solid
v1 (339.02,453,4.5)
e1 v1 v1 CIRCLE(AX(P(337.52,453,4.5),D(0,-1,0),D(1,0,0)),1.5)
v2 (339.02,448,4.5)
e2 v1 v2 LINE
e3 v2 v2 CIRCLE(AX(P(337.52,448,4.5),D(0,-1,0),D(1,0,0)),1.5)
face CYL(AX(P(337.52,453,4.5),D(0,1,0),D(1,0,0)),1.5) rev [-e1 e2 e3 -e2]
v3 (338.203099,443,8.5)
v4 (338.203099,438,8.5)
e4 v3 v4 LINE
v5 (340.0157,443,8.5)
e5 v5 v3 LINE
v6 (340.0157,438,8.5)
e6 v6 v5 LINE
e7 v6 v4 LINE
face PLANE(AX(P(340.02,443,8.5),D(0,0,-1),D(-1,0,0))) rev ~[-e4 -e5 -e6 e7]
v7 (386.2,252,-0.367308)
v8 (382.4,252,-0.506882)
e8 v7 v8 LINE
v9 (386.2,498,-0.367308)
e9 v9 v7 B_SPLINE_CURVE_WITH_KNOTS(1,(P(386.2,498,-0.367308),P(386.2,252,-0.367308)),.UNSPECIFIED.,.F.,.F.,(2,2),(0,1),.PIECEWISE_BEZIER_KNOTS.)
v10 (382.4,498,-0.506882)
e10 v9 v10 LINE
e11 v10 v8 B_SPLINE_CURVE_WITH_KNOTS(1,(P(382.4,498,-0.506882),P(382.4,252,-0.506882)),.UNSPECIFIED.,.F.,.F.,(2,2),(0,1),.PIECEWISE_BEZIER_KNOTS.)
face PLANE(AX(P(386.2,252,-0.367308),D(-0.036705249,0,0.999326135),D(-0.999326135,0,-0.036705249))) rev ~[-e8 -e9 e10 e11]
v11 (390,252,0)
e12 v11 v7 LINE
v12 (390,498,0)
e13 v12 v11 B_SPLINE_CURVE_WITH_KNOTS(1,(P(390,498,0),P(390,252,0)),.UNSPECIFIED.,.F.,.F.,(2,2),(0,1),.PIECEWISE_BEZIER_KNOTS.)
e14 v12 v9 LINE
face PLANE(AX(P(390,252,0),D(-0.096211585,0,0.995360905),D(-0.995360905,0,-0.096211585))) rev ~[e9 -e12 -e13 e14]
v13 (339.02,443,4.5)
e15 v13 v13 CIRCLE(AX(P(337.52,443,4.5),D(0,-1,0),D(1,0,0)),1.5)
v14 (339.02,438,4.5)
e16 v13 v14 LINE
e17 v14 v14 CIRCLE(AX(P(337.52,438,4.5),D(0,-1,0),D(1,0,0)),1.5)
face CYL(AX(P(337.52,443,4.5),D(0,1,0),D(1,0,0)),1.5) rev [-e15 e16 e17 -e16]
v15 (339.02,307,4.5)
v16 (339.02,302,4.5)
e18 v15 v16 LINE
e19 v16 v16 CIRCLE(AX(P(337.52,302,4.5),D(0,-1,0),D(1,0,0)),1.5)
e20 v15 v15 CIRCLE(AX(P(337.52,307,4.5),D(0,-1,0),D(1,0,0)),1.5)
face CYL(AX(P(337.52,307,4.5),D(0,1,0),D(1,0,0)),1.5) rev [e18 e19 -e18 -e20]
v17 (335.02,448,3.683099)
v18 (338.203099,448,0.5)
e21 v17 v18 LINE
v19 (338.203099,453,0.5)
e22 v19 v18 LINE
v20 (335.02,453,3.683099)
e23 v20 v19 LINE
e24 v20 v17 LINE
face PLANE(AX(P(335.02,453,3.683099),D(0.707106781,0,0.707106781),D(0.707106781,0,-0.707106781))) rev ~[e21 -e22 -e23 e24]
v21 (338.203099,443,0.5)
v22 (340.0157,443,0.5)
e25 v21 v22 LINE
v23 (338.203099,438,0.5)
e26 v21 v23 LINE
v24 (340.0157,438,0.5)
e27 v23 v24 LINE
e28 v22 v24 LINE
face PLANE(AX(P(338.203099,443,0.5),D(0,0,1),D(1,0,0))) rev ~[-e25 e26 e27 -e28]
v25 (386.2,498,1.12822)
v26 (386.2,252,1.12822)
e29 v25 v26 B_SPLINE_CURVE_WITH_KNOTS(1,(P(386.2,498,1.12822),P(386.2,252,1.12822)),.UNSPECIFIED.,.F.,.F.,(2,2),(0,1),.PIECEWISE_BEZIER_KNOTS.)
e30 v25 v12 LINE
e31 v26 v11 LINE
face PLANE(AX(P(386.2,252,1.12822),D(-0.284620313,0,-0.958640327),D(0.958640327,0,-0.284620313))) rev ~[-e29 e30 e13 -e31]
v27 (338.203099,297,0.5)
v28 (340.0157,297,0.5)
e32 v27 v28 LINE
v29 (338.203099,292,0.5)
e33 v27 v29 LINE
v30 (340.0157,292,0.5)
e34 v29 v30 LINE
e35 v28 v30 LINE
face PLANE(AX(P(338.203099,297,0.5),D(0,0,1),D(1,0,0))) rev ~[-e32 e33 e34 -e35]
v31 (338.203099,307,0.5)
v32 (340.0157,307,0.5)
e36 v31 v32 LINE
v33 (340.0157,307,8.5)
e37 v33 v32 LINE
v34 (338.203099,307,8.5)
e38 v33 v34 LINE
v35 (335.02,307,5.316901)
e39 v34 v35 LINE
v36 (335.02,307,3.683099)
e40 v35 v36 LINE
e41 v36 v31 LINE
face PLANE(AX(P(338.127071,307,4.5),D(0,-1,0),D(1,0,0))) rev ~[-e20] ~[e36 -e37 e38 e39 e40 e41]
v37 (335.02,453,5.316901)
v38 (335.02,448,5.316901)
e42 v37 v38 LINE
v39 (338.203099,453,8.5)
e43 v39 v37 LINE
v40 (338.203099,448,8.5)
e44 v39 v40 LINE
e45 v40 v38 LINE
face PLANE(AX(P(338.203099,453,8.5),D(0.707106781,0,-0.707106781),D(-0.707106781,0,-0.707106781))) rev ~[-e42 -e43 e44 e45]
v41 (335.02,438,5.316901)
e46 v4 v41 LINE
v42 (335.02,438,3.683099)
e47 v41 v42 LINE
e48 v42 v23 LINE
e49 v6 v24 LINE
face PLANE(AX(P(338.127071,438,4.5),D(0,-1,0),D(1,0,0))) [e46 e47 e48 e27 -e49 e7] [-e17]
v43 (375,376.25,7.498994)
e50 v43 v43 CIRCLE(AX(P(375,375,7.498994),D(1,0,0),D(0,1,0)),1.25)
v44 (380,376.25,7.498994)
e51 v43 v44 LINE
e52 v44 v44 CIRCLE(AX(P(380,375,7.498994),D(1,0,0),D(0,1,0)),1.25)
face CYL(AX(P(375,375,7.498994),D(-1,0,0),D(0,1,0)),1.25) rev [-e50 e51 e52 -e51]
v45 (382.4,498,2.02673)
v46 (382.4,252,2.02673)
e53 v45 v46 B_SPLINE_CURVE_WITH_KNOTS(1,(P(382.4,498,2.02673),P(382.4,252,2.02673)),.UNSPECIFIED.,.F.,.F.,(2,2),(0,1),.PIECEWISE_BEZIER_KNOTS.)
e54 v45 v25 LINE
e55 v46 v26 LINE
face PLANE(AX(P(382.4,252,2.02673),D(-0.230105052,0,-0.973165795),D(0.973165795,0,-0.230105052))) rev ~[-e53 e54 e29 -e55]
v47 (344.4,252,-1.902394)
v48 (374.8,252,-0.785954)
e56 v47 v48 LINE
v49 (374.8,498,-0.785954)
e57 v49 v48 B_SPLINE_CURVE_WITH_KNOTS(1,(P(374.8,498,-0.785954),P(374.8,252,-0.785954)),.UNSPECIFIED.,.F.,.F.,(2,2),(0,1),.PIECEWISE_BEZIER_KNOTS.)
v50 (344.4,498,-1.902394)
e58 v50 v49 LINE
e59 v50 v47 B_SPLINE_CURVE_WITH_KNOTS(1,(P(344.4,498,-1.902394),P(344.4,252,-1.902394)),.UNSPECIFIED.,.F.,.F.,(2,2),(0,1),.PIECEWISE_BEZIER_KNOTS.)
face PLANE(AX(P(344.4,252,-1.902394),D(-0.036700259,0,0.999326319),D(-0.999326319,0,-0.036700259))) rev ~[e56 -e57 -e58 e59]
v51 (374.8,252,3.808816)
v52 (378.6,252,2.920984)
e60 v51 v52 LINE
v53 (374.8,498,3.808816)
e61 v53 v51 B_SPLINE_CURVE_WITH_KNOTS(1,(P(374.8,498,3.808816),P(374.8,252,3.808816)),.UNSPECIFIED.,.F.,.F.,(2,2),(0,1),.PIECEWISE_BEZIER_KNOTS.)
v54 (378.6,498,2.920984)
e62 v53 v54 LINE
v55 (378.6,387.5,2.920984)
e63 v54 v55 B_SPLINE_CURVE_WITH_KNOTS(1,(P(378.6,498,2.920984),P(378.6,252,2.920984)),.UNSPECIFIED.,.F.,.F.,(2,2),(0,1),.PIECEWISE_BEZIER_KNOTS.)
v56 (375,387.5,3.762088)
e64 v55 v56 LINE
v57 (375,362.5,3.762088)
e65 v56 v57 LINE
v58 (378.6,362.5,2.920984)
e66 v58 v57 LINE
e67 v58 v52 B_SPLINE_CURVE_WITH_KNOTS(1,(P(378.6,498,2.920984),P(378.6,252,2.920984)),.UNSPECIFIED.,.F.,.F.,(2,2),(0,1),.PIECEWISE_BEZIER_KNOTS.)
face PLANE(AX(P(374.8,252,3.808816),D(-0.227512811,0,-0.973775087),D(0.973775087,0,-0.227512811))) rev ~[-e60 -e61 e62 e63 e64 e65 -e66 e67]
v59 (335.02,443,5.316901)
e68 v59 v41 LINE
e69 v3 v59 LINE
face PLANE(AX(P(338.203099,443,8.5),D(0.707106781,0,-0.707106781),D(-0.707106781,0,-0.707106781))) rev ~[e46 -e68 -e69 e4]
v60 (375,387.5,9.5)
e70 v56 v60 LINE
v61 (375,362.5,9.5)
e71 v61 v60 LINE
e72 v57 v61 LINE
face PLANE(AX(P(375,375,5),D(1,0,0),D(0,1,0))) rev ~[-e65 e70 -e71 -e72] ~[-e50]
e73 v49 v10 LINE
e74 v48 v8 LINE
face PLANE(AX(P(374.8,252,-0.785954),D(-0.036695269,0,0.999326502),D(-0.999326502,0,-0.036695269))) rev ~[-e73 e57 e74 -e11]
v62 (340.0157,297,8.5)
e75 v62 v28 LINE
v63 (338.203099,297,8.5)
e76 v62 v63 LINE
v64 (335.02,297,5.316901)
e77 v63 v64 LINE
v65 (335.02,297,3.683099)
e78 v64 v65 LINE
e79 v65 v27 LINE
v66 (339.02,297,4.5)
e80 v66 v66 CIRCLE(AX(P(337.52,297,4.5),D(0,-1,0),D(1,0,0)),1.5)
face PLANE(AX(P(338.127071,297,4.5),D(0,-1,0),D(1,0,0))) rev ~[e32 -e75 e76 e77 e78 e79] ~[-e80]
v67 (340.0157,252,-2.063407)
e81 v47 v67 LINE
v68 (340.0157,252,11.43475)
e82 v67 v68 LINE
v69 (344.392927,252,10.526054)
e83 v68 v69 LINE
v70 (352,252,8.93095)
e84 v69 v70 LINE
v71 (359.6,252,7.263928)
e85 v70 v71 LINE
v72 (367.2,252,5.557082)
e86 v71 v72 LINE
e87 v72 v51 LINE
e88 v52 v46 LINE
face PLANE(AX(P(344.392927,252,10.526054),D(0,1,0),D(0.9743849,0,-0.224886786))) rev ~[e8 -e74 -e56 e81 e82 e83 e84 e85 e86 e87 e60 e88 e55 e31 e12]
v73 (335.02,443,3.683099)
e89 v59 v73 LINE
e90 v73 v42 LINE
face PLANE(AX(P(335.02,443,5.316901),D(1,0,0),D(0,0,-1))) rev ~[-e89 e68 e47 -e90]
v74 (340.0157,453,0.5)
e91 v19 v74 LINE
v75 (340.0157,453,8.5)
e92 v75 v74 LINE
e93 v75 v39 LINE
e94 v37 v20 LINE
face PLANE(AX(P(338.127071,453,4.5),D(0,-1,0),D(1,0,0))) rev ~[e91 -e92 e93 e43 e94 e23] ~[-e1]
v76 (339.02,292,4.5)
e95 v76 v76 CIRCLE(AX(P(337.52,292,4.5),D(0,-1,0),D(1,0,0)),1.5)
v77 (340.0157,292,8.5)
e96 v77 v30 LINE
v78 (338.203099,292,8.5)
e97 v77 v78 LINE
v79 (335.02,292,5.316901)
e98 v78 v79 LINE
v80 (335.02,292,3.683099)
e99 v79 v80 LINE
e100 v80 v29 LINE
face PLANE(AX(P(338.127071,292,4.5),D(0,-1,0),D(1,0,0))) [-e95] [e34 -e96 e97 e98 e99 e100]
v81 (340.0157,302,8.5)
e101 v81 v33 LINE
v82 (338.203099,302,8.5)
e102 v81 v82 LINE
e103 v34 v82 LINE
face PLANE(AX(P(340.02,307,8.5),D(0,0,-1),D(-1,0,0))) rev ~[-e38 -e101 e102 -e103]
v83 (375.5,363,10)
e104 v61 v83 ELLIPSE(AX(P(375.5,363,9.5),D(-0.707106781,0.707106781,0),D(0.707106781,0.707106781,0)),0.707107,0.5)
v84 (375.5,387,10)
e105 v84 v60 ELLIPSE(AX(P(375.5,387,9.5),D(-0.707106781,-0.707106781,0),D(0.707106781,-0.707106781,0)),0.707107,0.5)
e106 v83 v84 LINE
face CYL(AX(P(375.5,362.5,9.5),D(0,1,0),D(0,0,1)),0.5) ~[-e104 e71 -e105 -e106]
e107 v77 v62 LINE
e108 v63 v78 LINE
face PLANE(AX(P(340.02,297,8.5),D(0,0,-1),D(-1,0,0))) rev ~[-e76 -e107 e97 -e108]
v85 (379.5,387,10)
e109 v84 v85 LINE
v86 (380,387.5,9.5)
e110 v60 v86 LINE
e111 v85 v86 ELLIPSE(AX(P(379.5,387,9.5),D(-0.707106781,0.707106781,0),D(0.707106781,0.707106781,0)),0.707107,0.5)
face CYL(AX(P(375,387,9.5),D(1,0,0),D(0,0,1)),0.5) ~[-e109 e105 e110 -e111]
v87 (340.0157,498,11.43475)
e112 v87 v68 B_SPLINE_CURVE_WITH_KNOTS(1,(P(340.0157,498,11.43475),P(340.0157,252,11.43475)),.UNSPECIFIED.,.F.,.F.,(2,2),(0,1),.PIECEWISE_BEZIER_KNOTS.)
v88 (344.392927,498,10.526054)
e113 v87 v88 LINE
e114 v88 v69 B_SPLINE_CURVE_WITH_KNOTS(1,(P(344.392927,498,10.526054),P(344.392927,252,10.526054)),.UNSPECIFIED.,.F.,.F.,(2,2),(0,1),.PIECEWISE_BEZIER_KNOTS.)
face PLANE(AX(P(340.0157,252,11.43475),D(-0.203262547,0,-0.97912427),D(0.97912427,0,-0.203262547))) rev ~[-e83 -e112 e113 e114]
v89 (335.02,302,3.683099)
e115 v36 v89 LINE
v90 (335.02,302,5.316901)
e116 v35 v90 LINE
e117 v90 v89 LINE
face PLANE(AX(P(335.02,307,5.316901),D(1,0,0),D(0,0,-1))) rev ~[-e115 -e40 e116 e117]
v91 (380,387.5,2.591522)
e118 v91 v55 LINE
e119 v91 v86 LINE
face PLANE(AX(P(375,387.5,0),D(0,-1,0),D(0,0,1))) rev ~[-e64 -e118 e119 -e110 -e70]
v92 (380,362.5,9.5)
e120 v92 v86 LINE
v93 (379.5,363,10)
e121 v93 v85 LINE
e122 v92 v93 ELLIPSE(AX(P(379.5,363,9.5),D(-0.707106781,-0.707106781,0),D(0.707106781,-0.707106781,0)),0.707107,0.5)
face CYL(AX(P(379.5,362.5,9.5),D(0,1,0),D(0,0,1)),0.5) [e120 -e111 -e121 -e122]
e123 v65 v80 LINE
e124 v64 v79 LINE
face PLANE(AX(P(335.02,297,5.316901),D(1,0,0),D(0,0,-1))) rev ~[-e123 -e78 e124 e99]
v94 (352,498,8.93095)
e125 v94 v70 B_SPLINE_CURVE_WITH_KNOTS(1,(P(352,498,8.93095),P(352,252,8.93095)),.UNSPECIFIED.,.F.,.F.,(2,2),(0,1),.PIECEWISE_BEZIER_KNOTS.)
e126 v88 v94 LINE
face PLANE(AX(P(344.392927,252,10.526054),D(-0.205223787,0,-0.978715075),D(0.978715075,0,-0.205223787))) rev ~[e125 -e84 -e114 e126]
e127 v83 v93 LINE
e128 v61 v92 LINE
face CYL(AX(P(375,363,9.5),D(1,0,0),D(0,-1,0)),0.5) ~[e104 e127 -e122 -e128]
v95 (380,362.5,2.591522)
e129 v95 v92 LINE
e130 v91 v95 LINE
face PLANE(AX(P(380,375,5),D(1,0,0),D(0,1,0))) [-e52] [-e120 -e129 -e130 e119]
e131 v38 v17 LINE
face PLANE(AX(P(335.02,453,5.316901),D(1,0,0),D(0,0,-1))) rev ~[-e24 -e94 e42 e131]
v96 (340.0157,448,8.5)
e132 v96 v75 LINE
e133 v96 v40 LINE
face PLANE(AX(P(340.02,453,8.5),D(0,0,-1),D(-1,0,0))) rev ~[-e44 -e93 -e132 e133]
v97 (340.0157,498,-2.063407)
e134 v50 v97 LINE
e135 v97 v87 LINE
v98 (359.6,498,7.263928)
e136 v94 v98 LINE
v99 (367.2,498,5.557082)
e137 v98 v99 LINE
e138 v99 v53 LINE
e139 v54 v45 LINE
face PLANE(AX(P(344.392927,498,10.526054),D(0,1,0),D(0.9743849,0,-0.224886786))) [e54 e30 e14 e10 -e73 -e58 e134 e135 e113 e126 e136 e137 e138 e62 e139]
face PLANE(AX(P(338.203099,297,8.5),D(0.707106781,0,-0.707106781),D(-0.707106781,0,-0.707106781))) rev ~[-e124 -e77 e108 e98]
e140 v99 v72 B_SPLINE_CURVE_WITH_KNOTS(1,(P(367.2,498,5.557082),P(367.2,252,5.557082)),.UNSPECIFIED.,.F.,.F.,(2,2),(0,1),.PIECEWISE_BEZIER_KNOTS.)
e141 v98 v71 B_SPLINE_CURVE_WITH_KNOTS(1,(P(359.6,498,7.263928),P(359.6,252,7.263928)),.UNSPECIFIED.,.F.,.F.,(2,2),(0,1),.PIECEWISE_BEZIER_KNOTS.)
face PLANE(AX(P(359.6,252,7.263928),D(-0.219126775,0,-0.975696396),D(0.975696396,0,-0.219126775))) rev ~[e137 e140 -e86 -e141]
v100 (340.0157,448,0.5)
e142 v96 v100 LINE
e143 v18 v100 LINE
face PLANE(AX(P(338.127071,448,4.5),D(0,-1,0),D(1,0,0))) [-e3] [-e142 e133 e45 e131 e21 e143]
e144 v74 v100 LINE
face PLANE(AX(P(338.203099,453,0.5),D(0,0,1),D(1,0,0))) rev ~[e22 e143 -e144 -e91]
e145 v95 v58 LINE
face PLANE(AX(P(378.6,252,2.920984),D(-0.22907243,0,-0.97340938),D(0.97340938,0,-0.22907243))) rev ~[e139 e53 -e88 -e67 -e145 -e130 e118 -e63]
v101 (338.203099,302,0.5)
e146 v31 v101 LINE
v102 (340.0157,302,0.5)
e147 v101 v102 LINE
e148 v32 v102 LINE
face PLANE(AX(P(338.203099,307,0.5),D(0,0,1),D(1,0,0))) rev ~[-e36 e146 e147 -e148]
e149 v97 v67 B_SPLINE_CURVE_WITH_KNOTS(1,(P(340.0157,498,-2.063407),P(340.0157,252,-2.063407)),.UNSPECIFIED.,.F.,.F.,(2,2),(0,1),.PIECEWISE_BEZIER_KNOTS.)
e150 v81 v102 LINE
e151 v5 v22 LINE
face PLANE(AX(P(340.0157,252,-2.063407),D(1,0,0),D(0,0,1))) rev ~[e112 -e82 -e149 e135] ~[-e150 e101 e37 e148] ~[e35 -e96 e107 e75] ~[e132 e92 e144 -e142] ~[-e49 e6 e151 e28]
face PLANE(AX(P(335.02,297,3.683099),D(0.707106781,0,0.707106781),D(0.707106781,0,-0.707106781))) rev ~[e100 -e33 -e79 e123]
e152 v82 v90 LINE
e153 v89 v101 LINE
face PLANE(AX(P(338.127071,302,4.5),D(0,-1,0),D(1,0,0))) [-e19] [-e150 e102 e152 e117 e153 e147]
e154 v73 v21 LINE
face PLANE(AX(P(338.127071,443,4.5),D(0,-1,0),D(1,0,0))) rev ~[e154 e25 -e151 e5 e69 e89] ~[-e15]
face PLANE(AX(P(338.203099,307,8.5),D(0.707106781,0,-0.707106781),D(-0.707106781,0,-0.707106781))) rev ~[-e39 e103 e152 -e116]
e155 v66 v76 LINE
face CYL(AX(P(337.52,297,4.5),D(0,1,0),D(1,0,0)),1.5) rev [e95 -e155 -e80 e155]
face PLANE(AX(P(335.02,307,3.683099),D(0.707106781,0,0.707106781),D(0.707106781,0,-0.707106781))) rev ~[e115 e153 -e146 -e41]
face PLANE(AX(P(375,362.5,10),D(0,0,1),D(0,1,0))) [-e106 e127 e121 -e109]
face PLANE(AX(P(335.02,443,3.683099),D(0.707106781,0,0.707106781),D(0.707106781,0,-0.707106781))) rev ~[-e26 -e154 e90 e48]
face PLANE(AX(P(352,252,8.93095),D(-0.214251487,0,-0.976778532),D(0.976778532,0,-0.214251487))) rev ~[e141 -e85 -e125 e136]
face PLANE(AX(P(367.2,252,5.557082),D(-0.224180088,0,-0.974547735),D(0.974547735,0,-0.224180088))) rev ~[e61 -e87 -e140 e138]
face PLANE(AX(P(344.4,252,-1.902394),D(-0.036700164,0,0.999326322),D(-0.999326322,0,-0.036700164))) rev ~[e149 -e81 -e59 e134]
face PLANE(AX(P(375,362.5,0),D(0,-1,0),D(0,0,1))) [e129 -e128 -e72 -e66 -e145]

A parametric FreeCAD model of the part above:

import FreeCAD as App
import Part
import Sketcher
from FreeCAD import Vector


def edges_at(feature, points):
    """Names of the edges that pass closest to the given points."""
    edges = feature.Shape.Edges
    near = lambda p: min(range(len(edges)), key=lambda i: edges[i].distToShape(Part.Vertex(*p))[0])
    return sorted({f"Edge{near(p) + 1}" for p in points})

doc = App.newDocument("Part")
body = doc.addObject("PartDesign::Body", "Body")

# Sketch on XZ plane
sketch1 = body.newObject("Sketcher::SketchObject", "Sketch")
sketch1.AttachmentSupport = (doc.getObject("XZ_Plane"), [""])
sketch1.MapMode = "FlatFace"
sketch1.addGeometry(Part.LineSegment(Vector(0.7, -4, 0), Vector(2.5, -4, 0)), False)
sketch1.addGeometry(Part.LineSegment(Vector(2.5, -4, 0), Vector(2.5, 4, 0)), False)
sketch1.addGeometry(Part.LineSegment(Vector(2.5, 4, 0), Vector(0.7, 4, 0)), False)
sketch1.addGeometry(Part.LineSegment(Vector(0.7, 4, 0), Vector(-2.5, 0.8, 0)), False)
sketch1.addGeometry(Part.LineSegment(Vector(-2.5, 0.8, 0), Vector(-2.5, -0.8, 0)), False)
sketch1.addGeometry(Part.LineSegment(Vector(-2.5, -0.8, 0), Vector(0.7, -4, 0)), False)
sketch1.addGeometry(Part.Circle(Vector(0, 0, 0), Vector(0, 0, 1), 1.5), False)
sketch1.addConstraint(Sketcher.Constraint("Coincident", 0, 2, 1, 1))
sketch1.addConstraint(Sketcher.Constraint("Coincident", 1, 2, 2, 1))
sketch1.addConstraint(Sketcher.Constraint("Coincident", 2, 2, 3, 1))
sketch1.addConstraint(Sketcher.Constraint("Coincident", 3, 2, 4, 1))
sketch1.addConstraint(Sketcher.Constraint("Coincident", 4, 2, 5, 1))
sketch1.addConstraint(Sketcher.Constraint("Coincident", 5, 2, 0, 1))
sketch1.addConstraint(Sketcher.Constraint("Horizontal", 0))
sketch1.addConstraint(Sketcher.Constraint("Vertical", 1))
sketch1.addConstraint(Sketcher.Constraint("Horizontal", 2))
sketch1.addConstraint(Sketcher.Constraint("Vertical", 4))
sketch1.addConstraint(Sketcher.Constraint("Symmetric", 2, 2, 5, 2, -1))
sketch1.addConstraint(Sketcher.Constraint("PointOnObject", 6, 3, -1))
sketch1.addConstraint(Sketcher.Constraint("Perpendicular", 3, 5))
sketch1.addConstraint(Sketcher.Constraint("Equal", 3, 5))
sketch1.addConstraint(Sketcher.Constraint("Diameter", 6, 3.0))
sketch1.addConstraint(Sketcher.Constraint("DistanceY", 1, 1, 1, 2, 8.0))
sketch1.addConstraint(Sketcher.Constraint("DistanceX", 3, 2, 1, 2, 5.0))
sketch1.addConstraint(Sketcher.Constraint("DistanceX", 6, 3, 0, 2, 2.5))
sketch1.addConstraint(Sketcher.Constraint("DistanceX", -1, 1, 6, 3, 0.02))
sketch1.addConstraint(Sketcher.Constraint("DistanceX", 0, 1, 0, 2, 1.816901))
pad1 = body.newObject("PartDesign::Pad", "Pad")
pad1.Profile = sketch1
pad1.Length = 5
body2 = doc.addObject("PartDesign::Body", "Body001")
doc.recompute()

body.Placement = App.Placement(Vector(337.5, 453, 4.5), App.Rotation(Vector(0, 0, 1), 0))
boolean = body2.newObject("PartDesign::Boolean", "Boolean")
boolean.Type = "Fuse"
boolean.addObjects([body])
body3 = doc.addObject("PartDesign::Body", "Body002")

# Sketch on XZ plane
sketch2 = body3.newObject("Sketcher::SketchObject", "Sketch001")
sketch2.AttachmentSupport = (doc.getObject("XZ_Plane002"), [""])
sketch2.MapMode = "FlatFace"
sketch2.addGeometry(Part.LineSegment(Vector(0.7, -4, 0), Vector(2.5, -4, 0)), False)
sketch2.addGeometry(Part.LineSegment(Vector(2.5, -4, 0), Vector(2.5, 4, 0)), False)
sketch2.addGeometry(Part.LineSegment(Vector(2.5, 4, 0), Vector(0.7, 4, 0)), False)
sketch2.addGeometry(Part.LineSegment(Vector(0.7, 4, 0), Vector(-2.5, 0.8, 0)), False)
sketch2.addGeometry(Part.LineSegment(Vector(-2.5, 0.8, 0), Vector(-2.5, -0.8, 0)), False)
sketch2.addGeometry(Part.LineSegment(Vector(-2.5, -0.8, 0), Vector(0.7, -4, 0)), False)
sketch2.addGeometry(Part.Circle(Vector(0, 0, 0), Vector(0, 0, 1), 1.5), False)
sketch2.addConstraint(Sketcher.Constraint("Coincident", 0, 2, 1, 1))
sketch2.addConstraint(Sketcher.Constraint("Coincident", 1, 2, 2, 1))
sketch2.addConstraint(Sketcher.Constraint("Coincident", 2, 2, 3, 1))
sketch2.addConstraint(Sketcher.Constraint("Coincident", 3, 2, 4, 1))
sketch2.addConstraint(Sketcher.Constraint("Coincident", 4, 2, 5, 1))
sketch2.addConstraint(Sketcher.Constraint("Coincident", 5, 2, 0, 1))
sketch2.addConstraint(Sketcher.Constraint("Horizontal", 0))
sketch2.addConstraint(Sketcher.Constraint("Vertical", 1))
sketch2.addConstraint(Sketcher.Constraint("Horizontal", 2))
sketch2.addConstraint(Sketcher.Constraint("Vertical", 4))
sketch2.addConstraint(Sketcher.Constraint("Symmetric", 2, 2, 5, 2, -1))
sketch2.addConstraint(Sketcher.Constraint("PointOnObject", 6, 3, -1))
sketch2.addConstraint(Sketcher.Constraint("Perpendicular", 3, 5))
sketch2.addConstraint(Sketcher.Constraint("Equal", 3, 5))
sketch2.addConstraint(Sketcher.Constraint("Diameter", 6, 3.0))
sketch2.addConstraint(Sketcher.Constraint("DistanceY", 1, 1, 1, 2, 8.0))
sketch2.addConstraint(Sketcher.Constraint("DistanceX", 3, 2, 1, 2, 5.0))
sketch2.addConstraint(Sketcher.Constraint("DistanceX", 6, 3, 0, 2, 2.5))
sketch2.addConstraint(Sketcher.Constraint("DistanceX", -1, 1, 6, 3, 0.02))
sketch2.addConstraint(Sketcher.Constraint("DistanceX", 0, 1, 0, 2, 1.816901))
pad2 = body3.newObject("PartDesign::Pad", "Pad001")
pad2.Profile = sketch2
pad2.Length = 5
body4 = doc.addObject("PartDesign::Body", "Body003")
doc.recompute()

body3.Placement = App.Placement(Vector(337.5, 443, 4.5), App.Rotation(Vector(0, 0, 1), 0))
boolean2 = body4.newObject("PartDesign::Boolean", "Boolean001")
boolean2.Type = "Fuse"
boolean2.addObjects([body3])
body5 = doc.addObject("PartDesign::Body", "Body004")

# Sketch on XZ plane
sketch3 = body5.newObject("Sketcher::SketchObject", "Sketch002")
sketch3.AttachmentSupport = (doc.getObject("XZ_Plane004"), [""])
sketch3.MapMode = "FlatFace"
sketch3.addGeometry(Part.LineSegment(Vector(0.7, -4, 0), Vector(2.5, -4, 0)), False)
sketch3.addGeometry(Part.LineSegment(Vector(2.5, -4, 0), Vector(2.5, 4, 0)), False)
sketch3.addGeometry(Part.LineSegment(Vector(2.5, 4, 0), Vector(0.7, 4, 0)), False)
sketch3.addGeometry(Part.LineSegment(Vector(0.7, 4, 0), Vector(-2.5, 0.8, 0)), False)
sketch3.addGeometry(Part.LineSegment(Vector(-2.5, 0.8, 0), Vector(-2.5, -0.8, 0)), False)
sketch3.addGeometry(Part.LineSegment(Vector(-2.5, -0.8, 0), Vector(0.7, -4, 0)), False)
sketch3.addGeometry(Part.Circle(Vector(0, 0, 0), Vector(0, 0, 1), 1.5), False)
sketch3.addConstraint(Sketcher.Constraint("Coincident", 0, 2, 1, 1))
sketch3.addConstraint(Sketcher.Constraint("Coincident", 1, 2, 2, 1))
sketch3.addConstraint(Sketcher.Constraint("Coincident", 2, 2, 3, 1))
sketch3.addConstraint(Sketcher.Constraint("Coincident", 3, 2, 4, 1))
sketch3.addConstraint(Sketcher.Constraint("Coincident", 4, 2, 5, 1))
sketch3.addConstraint(Sketcher.Constraint("Coincident", 5, 2, 0, 1))
sketch3.addConstraint(Sketcher.Constraint("Horizontal", 0))
sketch3.addConstraint(Sketcher.Constraint("Vertical", 1))
sketch3.addConstraint(Sketcher.Constraint("Horizontal", 2))
sketch3.addConstraint(Sketcher.Constraint("Vertical", 4))
sketch3.addConstraint(Sketcher.Constraint("Symmetric", 2, 2, 5, 2, -1))
sketch3.addConstraint(Sketcher.Constraint("PointOnObject", 6, 3, -1))
sketch3.addConstraint(Sketcher.Constraint("Perpendicular", 3, 5))
sketch3.addConstraint(Sketcher.Constraint("Equal", 3, 5))
sketch3.addConstraint(Sketcher.Constraint("Diameter", 6, 3.0))
sketch3.addConstraint(Sketcher.Constraint("DistanceY", 1, 1, 1, 2, 8.0))
sketch3.addConstraint(Sketcher.Constraint("DistanceX", 3, 2, 1, 2, 5.0))
sketch3.addConstraint(Sketcher.Constraint("DistanceX", 6, 3, 0, 2, 2.5))
sketch3.addConstraint(Sketcher.Constraint("DistanceX", -1, 1, 6, 3, 0.02))
sketch3.addConstraint(Sketcher.Constraint("DistanceX", 0, 1, 0, 2, 1.816901))
pad3 = body5.newObject("PartDesign::Pad", "Pad002")
pad3.Profile = sketch3
pad3.Length = 5
body6 = doc.addObject("PartDesign::Body", "Body005")
doc.recompute()

body5.Placement = App.Placement(Vector(337.5, 297, 4.5), App.Rotation(Vector(0, 0, 1), 0))
boolean3 = body6.newObject("PartDesign::Boolean", "Boolean002")
boolean3.Type = "Fuse"
boolean3.addObjects([body5])
body7 = doc.addObject("PartDesign::Body", "Body006")

# Sketch on XZ plane
sketch4 = body7.newObject("Sketcher::SketchObject", "Sketch003")
sketch4.AttachmentSupport = (doc.getObject("XZ_Plane006"), [""])
sketch4.MapMode = "FlatFace"
sketch4.addGeometry(Part.LineSegment(Vector(0.7, -4, 0), Vector(2.5, -4, 0)), False)
sketch4.addGeometry(Part.LineSegment(Vector(2.5, -4, 0), Vector(2.5, 4, 0)), False)
sketch4.addGeometry(Part.LineSegment(Vector(2.5, 4, 0), Vector(0.7, 4, 0)), False)
sketch4.addGeometry(Part.LineSegment(Vector(0.7, 4, 0), Vector(-2.5, 0.8, 0)), False)
sketch4.addGeometry(Part.LineSegment(Vector(-2.5, 0.8, 0), Vector(-2.5, -0.8, 0)), False)
sketch4.addGeometry(Part.LineSegment(Vector(-2.5, -0.8, 0), Vector(0.7, -4, 0)), False)
sketch4.addGeometry(Part.Circle(Vector(0, 0, 0), Vector(0, 0, 1), 1.5), False)
sketch4.addConstraint(Sketcher.Constraint("Coincident", 0, 2, 1, 1))
sketch4.addConstraint(Sketcher.Constraint("Coincident", 1, 2, 2, 1))
sketch4.addConstraint(Sketcher.Constraint("Coincident", 2, 2, 3, 1))
sketch4.addConstraint(Sketcher.Constraint("Coincident", 3, 2, 4, 1))
sketch4.addConstraint(Sketcher.Constraint("Coincident", 4, 2, 5, 1))
sketch4.addConstraint(Sketcher.Constraint("Coincident", 5, 2, 0, 1))
sketch4.addConstraint(Sketcher.Constraint("Horizontal", 0))
sketch4.addConstraint(Sketcher.Constraint("Vertical", 1))
sketch4.addConstraint(Sketcher.Constraint("Horizontal", 2))
sketch4.addConstraint(Sketcher.Constraint("Vertical", 4))
sketch4.addConstraint(Sketcher.Constraint("Symmetric", 2, 2, 5, 2, -1))
sketch4.addConstraint(Sketcher.Constraint("PointOnObject", 6, 3, -1))
sketch4.addConstraint(Sketcher.Constraint("Perpendicular", 3, 5))
sketch4.addConstraint(Sketcher.Constraint("Equal", 3, 5))
sketch4.addConstraint(Sketcher.Constraint("Diameter", 6, 3.0))
sketch4.addConstraint(Sketcher.Constraint("DistanceY", 1, 1, 1, 2, 8.0))
sketch4.addConstraint(Sketcher.Constraint("DistanceX", 3, 2, 1, 2, 5.0))
sketch4.addConstraint(Sketcher.Constraint("DistanceX", 6, 3, 0, 2, 2.5))
sketch4.addConstraint(Sketcher.Constraint("DistanceX", -1, 1, 6, 3, 0.02))
sketch4.addConstraint(Sketcher.Constraint("DistanceX", 0, 1, 0, 2, 1.816901))
pad4 = body7.newObject("PartDesign::Pad", "Pad003")
pad4.Profile = sketch4
pad4.Length = 5
body8 = doc.addObject("PartDesign::Body", "Body007")
doc.recompute()

body7.Placement = App.Placement(Vector(337.5, 307, 4.5), App.Rotation(Vector(0, 0, 1), 0))
boolean4 = body8.newObject("PartDesign::Boolean", "Boolean003")
boolean4.Type = "Fuse"
boolean4.addObjects([body7])
body9 = doc.addObject("PartDesign::Body", "Body008")

# Sketch on YZ plane
sketch5 = body9.newObject("Sketcher::SketchObject", "Sketch004")
sketch5.AttachmentSupport = (doc.getObject("YZ_Plane008"), [""])
sketch5.MapMode = "FlatFace"
sketch5.addGeometry(Part.LineSegment(Vector(-12.5, 5, 0), Vector(-12.5, -5, 0)), False)
sketch5.addGeometry(Part.LineSegment(Vector(-12.5, -5, 0), Vector(12.5, -5, 0)), False)
sketch5.addGeometry(Part.LineSegment(Vector(12.5, -5, 0), Vector(12.5, 5, 0)), False)
sketch5.addGeometry(Part.LineSegment(Vector(12.5, 5, 0), Vector(-12.5, 5, 0)), False)
sketch5.addGeometry(Part.Circle(Vector(0, 2.5, 0), Vector(0, 0, 1), 1.2), False)
sketch5.addConstraint(Sketcher.Constraint("Coincident", 0, 2, 1, 1))
sketch5.addConstraint(Sketcher.Constraint("Coincident", 1, 2, 2, 1))
sketch5.addConstraint(Sketcher.Constraint("Coincident", 2, 2, 3, 1))
sketch5.addConstraint(Sketcher.Constraint("Coincident", 3, 2, 0, 1))
sketch5.addConstraint(Sketcher.Constraint("Vertical", 0))
sketch5.addConstraint(Sketcher.Constraint("Horizontal", 1))
sketch5.addConstraint(Sketcher.Constraint("Vertical", 2))
sketch5.addConstraint(Sketcher.Constraint("Horizontal", 3))
sketch5.addConstraint(Sketcher.Constraint("Symmetric", 0, 2, 2, 2, -1, 1))
sketch5.addConstraint(Sketcher.Constraint("PointOnObject", 4, 3, -2))
sketch5.addConstraint(Sketcher.Constraint("Diameter", 4, 2.5))
sketch5.addConstraint(Sketcher.Constraint("DistanceX", 1, 1, 1, 2, 25.0))
sketch5.addConstraint(Sketcher.Constraint("DistanceY", 0, 2, 0, 1, 10.0))
sketch5.addConstraint(Sketcher.Constraint("DistanceY", -1, 1, 4, 3, 2.498994))
pad5 = body9.newObject("PartDesign::Pad", "Pad004")
pad5.Profile = sketch5
pad5.Length = 5
doc.recompute()

fillet = body9.newObject("PartDesign::Fillet", "Fillet")
fillet.Base = (pad5, edges_at(pad5, [
    (2.5, 12.5, 5),
    (2.5, -12.5, 5),
    (0, 0, 5),
    (5, 0, 5),
]))
fillet.Radius = 0.5
body10 = doc.addObject("PartDesign::Body", "Body009")
doc.recompute()

body9.Placement = App.Placement(Vector(375, 375, 5), App.Rotation(Vector(0, 0, 1), 0))
boolean5 = body10.newObject("PartDesign::Boolean", "Boolean004")
boolean5.Type = "Fuse"
boolean5.addObjects([body9])
body11 = doc.addObject("PartDesign::Body", "Body010")

# Sketch on XZ plane
sketch6 = body11.newObject("Sketcher::SketchObject", "Sketch005")
sketch6.AttachmentSupport = (doc.getObject("XZ_Plane010"), [""])
sketch6.MapMode = "FlatFace"
sketch6.AttachmentOffset = App.Placement(Vector(0, 0, -498), App.Rotation())
sketch6.addGeometry(Part.LineSegment(Vector(352, 8.9, 0), Vector(344.4, 10.5, 0)), False)
sketch6.addGeometry(Part.LineSegment(Vector(344.4, 10.5, 0), Vector(340, 11.4, 0)), False)
sketch6.addGeometry(Part.LineSegment(Vector(340, 11.4, 0), Vector(340, -2.1, 0)), False)
sketch6.addGeometry(Part.LineSegment(Vector(340, -2.1, 0), Vector(344.4, -1.9, 0)), False)
sketch6.addGeometry(Part.LineSegment(Vector(344.4, -1.9, 0), Vector(374.8, -0.8, 0)), False)
sketch6.addGeometry(Part.LineSegment(Vector(374.8, -0.8, 0), Vector(382.4, -0.5, 0)), False)
sketch6.addGeometry(Part.LineSegment(Vector(382.4, -0.5, 0), Vector(386.2, -0.4, 0)), False)
sketch6.addGeometry(Part.LineSegment(Vector(386.2, -0.4, 0), Vector(390, 0, 0)), False)
sketch6.addGeometry(Part.LineSegment(Vector(390, 0, 0), Vector(386.2, 1.1, 0)), False)
sketch6.addGeometry(Part.LineSegment(Vector(386.2, 1.1, 0), Vector(382.4, 2, 0)), False)
sketch6.addGeometry(Part.LineSegment(Vector(382.4, 2, 0), Vector(378.6, 2.9, 0)), False)
sketch6.addGeometry(Part.LineSegment(Vector(378.6, 2.9, 0), Vector(374.8, 3.8, 0)), False)
sketch6.addGeometry(Part.LineSegment(Vector(374.8, 3.8, 0), Vector(367.2, 5.6, 0)), False)
sketch6.addGeometry(Part.LineSegment(Vector(367.2, 5.6, 0), Vector(359.6, 7.3, 0)), False)
sketch6.addGeometry(Part.LineSegment(Vector(359.6, 7.3, 0), Vector(352, 8.9, 0)), False)
sketch6.addConstraint(Sketcher.Constraint("Coincident", 0, 2, 1, 1))
sketch6.addConstraint(Sketcher.Constraint("Coincident", 1, 2, 2, 1))
sketch6.addConstraint(Sketcher.Constraint("Coincident", 2, 2, 3, 1))
sketch6.addConstraint(Sketcher.Constraint("Coincident", 3, 2, 4, 1))
sketch6.addConstraint(Sketcher.Constraint("Coincident", 4, 2, 5, 1))
sketch6.addConstraint(Sketcher.Constraint("Coincident", 5, 2, 6, 1))
sketch6.addConstraint(Sketcher.Constraint("Coincident", 6, 2, 7, 1))
sketch6.addConstraint(Sketcher.Constraint("Coincident", 7, 2, 8, 1))
sketch6.addConstraint(Sketcher.Constraint("Coincident", 8, 2, 9, 1))
sketch6.addConstraint(Sketcher.Constraint("Coincident", 9, 2, 10, 1))
sketch6.addConstraint(Sketcher.Constraint("Coincident", 10, 2, 11, 1))
sketch6.addConstraint(Sketcher.Constraint("Coincident", 11, 2, 12, 1))
sketch6.addConstraint(Sketcher.Constraint("Coincident", 12, 2, 13, 1))
sketch6.addConstraint(Sketcher.Constraint("Coincident", 13, 2, 14, 1))
sketch6.addConstraint(Sketcher.Constraint("Coincident", 14, 2, 0, 1))
sketch6.addConstraint(Sketcher.Constraint("Vertical", 2))
sketch6.addConstraint(Sketcher.Constraint("PointOnObject", 7, 2, -1))
sketch6.addConstraint(Sketcher.Constraint("Parallel", 3, 4))
sketch6.addConstraint(Sketcher.Constraint("Vertical", 6, 2, 8, 2))
sketch6.addConstraint(Sketcher.Constraint("Vertical", 5, 2, 9, 2))
sketch6.addConstraint(Sketcher.Constraint("Vertical", 4, 2, 11, 2))
sketch6.addConstraint(Sketcher.Constraint("DistanceX", -1, 1, 7, 2, 390.0))
sketch6.addConstraint(Sketcher.Constraint("DistanceX", -1, 1, 14, 2, 352.0))
sketch6.addConstraint(Sketcher.Constraint("DistanceX", 3, 2, 5, 2, 38.0))
sketch6.addConstraint(Sketcher.Constraint("DistanceX", -1, 1, 3, 2, 344.4))
sketch6.addConstraint(Sketcher.Constraint("DistanceX", -1, 1, 4, 2, 374.8))
sketch6.addConstraint(Sketcher.Constraint("DistanceX", -1, 1, 6, 2, 386.2))
sketch6.addConstraint(Sketcher.Constraint("DistanceX", -1, 1, 10, 2, 378.6))
sketch6.addConstraint(Sketcher.Constraint("DistanceX", -1, 1, 12, 2, 367.2))
sketch6.addConstraint(Sketcher.Constraint("DistanceX", -1, 1, 13, 2, 359.6))
sketch6.addConstraint(Sketcher.Constraint("DistanceX", -1, 1, 1, 2, 340.0157))
sketch6.addConstraint(Sketcher.Constraint("DistanceY", 2, 2, 6, 2, 1.696099))
sketch6.addConstraint(Sketcher.Constraint("DistanceY", 5, 2, 11, 2, 4.315698))
sketch6.addConstraint(Sketcher.Constraint("DistanceY", 10, 2, 12, 2, 2.636098))
sketch6.addConstraint(Sketcher.Constraint("DistanceY", 14, 2, 1, 2, 2.5038))
sketch6.addConstraint(Sketcher.Constraint("Distance", 0, 7.77251))
sketch6.addConstraint(Sketcher.Constraint("Distance", 7, 3.817711))
sketch6.addConstraint(Sketcher.Constraint("Distance", 9, 3.904782))
sketch6.addConstraint(Sketcher.Constraint("Distance", 11, 3.902338))
sketch6.addConstraint(Sketcher.Constraint("Distance", 13, 7.789308))
sketch6.addConstraint(Sketcher.Constraint("Distance", 14, 7.780679))
sketch6.addConstraint(Sketcher.Constraint("DistanceY", 2, 2, 2, 1, 13.498157))
sketch6.addConstraint(Sketcher.Constraint("DistanceY", -1, 1, 8, 2, 1.12822))
sketch6.addConstraint(Sketcher.Constraint("DistanceY", 2, 2, 0, 2, 12.589461))
sketch6.addConstraint(Sketcher.Constraint("DistanceY", 3, 2, 4, 2, 1.11644))

# Sketch on XZ plane
sketch7 = body11.newObject("Sketcher::SketchObject", "Sketch006")
sketch7.AttachmentSupport = (doc.getObject("XZ_Plane010"), [""])
sketch7.MapMode = "FlatFace"
sketch7.AttachmentOffset = App.Placement(Vector(0, 0, -252), App.Rotation())
sketch7.addGeometry(Part.LineSegment(Vector(352, 8.9, 0), Vector(344.4, 10.5, 0)), False)
sketch7.addGeometry(Part.LineSegment(Vector(344.4, 10.5, 0), Vector(340, 11.4, 0)), False)
sketch7.addGeometry(Part.LineSegment(Vector(340, 11.4, 0), Vector(340, -2.1, 0)), False)
sketch7.addGeometry(Part.LineSegment(Vector(340, -2.1, 0), Vector(344.4, -1.9, 0)), False)
sketch7.addGeometry(Part.LineSegment(Vector(344.4, -1.9, 0), Vector(374.8, -0.8, 0)), False)
sketch7.addGeometry(Part.LineSegment(Vector(374.8, -0.8, 0), Vector(382.4, -0.5, 0)), False)
sketch7.addGeometry(Part.LineSegment(Vector(382.4, -0.5, 0), Vector(386.2, -0.4, 0)), False)
sketch7.addGeometry(Part.LineSegment(Vector(386.2, -0.4, 0), Vector(390, 0, 0)), False)
sketch7.addGeometry(Part.LineSegment(Vector(390, 0, 0), Vector(386.2, 1.1, 0)), False)
sketch7.addGeometry(Part.LineSegment(Vector(386.2, 1.1, 0), Vector(382.4, 2, 0)), False)
sketch7.addGeometry(Part.LineSegment(Vector(382.4, 2, 0), Vector(378.6, 2.9, 0)), False)
sketch7.addGeometry(Part.LineSegment(Vector(378.6, 2.9, 0), Vector(374.8, 3.8, 0)), False)
sketch7.addGeometry(Part.LineSegment(Vector(374.8, 3.8, 0), Vector(367.2, 5.6, 0)), False)
sketch7.addGeometry(Part.LineSegment(Vector(367.2, 5.6, 0), Vector(359.6, 7.3, 0)), False)
sketch7.addGeometry(Part.LineSegment(Vector(359.6, 7.3, 0), Vector(352, 8.9, 0)), False)
sketch7.addConstraint(Sketcher.Constraint("Coincident", 0, 2, 1, 1))
sketch7.addConstraint(Sketcher.Constraint("Coincident", 1, 2, 2, 1))
sketch7.addConstraint(Sketcher.Constraint("Coincident", 2, 2, 3, 1))
sketch7.addConstraint(Sketcher.Constraint("Coincident", 3, 2, 4, 1))
sketch7.addConstraint(Sketcher.Constraint("Coincident", 4, 2, 5, 1))
sketch7.addConstraint(Sketcher.Constraint("Coincident", 5, 2, 6, 1))
sketch7.addConstraint(Sketcher.Constraint("Coincident", 6, 2, 7, 1))
sketch7.addConstraint(Sketcher.Constraint("Coincident", 7, 2, 8, 1))
sketch7.addConstraint(Sketcher.Constraint("Coincident", 8, 2, 9, 1))
sketch7.addConstraint(Sketcher.Constraint("Coincident", 9, 2, 10, 1))
sketch7.addConstraint(Sketcher.Constraint("Coincident", 10, 2, 11, 1))
sketch7.addConstraint(Sketcher.Constraint("Coincident", 11, 2, 12, 1))
sketch7.addConstraint(Sketcher.Constraint("Coincident", 12, 2, 13, 1))
sketch7.addConstraint(Sketcher.Constraint("Coincident", 13, 2, 14, 1))
sketch7.addConstraint(Sketcher.Constraint("Coincident", 14, 2, 0, 1))
sketch7.addConstraint(Sketcher.Constraint("Vertical", 2))
sketch7.addConstraint(Sketcher.Constraint("PointOnObject", 7, 2, -1))
sketch7.addConstraint(Sketcher.Constraint("Parallel", 3, 4))
sketch7.addConstraint(Sketcher.Constraint("Vertical", 6, 2, 8, 2))
sketch7.addConstraint(Sketcher.Constraint("Vertical", 5, 2, 9, 2))
sketch7.addConstraint(Sketcher.Constraint("Vertical", 4, 2, 11, 2))
sketch7.addConstraint(Sketcher.Constraint("DistanceX", -1, 1, 7, 2, 390.0))
sketch7.addConstraint(Sketcher.Constraint("DistanceX", -1, 1, 14, 2, 352.0))
sketch7.addConstraint(Sketcher.Constraint("DistanceX", 3, 2, 5, 2, 38.0))
sketch7.addConstraint(Sketcher.Constraint("DistanceX", -1, 1, 3, 2, 344.4))
sketch7.addConstraint(Sketcher.Constraint("DistanceX", -1, 1, 4, 2, 374.8))
sketch7.addConstraint(Sketcher.Constraint("DistanceX", -1, 1, 6, 2, 386.2))
sketch7.addConstraint(Sketcher.Constraint("DistanceX", -1, 1, 10, 2, 378.6))
sketch7.addConstraint(Sketcher.Constraint("DistanceX", -1, 1, 12, 2, 367.2))
sketch7.addConstraint(Sketcher.Constraint("DistanceX", -1, 1, 13, 2, 359.6))
sketch7.addConstraint(Sketcher.Constraint("DistanceX", -1, 1, 1, 2, 340.0157))
sketch7.addConstraint(Sketcher.Constraint("DistanceY", 2, 2, 6, 2, 1.696099))
sketch7.addConstraint(Sketcher.Constraint("DistanceY", 5, 2, 11, 2, 4.315698))
sketch7.addConstraint(Sketcher.Constraint("DistanceY", 10, 2, 12, 2, 2.636098))
sketch7.addConstraint(Sketcher.Constraint("DistanceY", 14, 2, 1, 2, 2.5038))
sketch7.addConstraint(Sketcher.Constraint("Distance", 0, 7.77251))
sketch7.addConstraint(Sketcher.Constraint("Distance", 7, 3.817711))
sketch7.addConstraint(Sketcher.Constraint("Distance", 9, 3.904782))
sketch7.addConstraint(Sketcher.Constraint("Distance", 11, 3.902338))
sketch7.addConstraint(Sketcher.Constraint("Distance", 13, 7.789308))
sketch7.addConstraint(Sketcher.Constraint("Distance", 14, 7.780679))
sketch7.addConstraint(Sketcher.Constraint("DistanceY", 2, 2, 2, 1, 13.498157))
sketch7.addConstraint(Sketcher.Constraint("DistanceY", -1, 1, 8, 2, 1.12822))
sketch7.addConstraint(Sketcher.Constraint("DistanceY", 2, 2, 0, 2, 12.589461))
sketch7.addConstraint(Sketcher.Constraint("DistanceY", 3, 2, 4, 2, 1.11644))

additiveloft = body11.newObject("PartDesign::AdditiveLoft", "AdditiveLoft")
additiveloft.Profile = sketch6
additiveloft.Sections = [sketch7]
doc.recompute()

boolean6 = body11.newObject("PartDesign::Boolean", "Boolean005")
boolean6.Type = "Fuse"
boolean6.addObjects([body2])
doc.recompute()

boolean7 = body11.newObject("PartDesign::Boolean", "Boolean006")
boolean7.Type = "Fuse"
boolean7.addObjects([body4])
doc.recompute()

boolean8 = body11.newObject("PartDesign::Boolean", "Boolean007")
boolean8.Type = "Fuse"
boolean8.addObjects([body6])
doc.recompute()

boolean9 = body11.newObject("PartDesign::Boolean", "Boolean008")
boolean9.Type = "Fuse"
boolean9.addObjects([body8])
doc.recompute()

boolean10 = body11.newObject("PartDesign::Boolean", "Boolean009")
boolean10.Type = "Fuse"
boolean10.addObjects([body10])

doc.recompute()
